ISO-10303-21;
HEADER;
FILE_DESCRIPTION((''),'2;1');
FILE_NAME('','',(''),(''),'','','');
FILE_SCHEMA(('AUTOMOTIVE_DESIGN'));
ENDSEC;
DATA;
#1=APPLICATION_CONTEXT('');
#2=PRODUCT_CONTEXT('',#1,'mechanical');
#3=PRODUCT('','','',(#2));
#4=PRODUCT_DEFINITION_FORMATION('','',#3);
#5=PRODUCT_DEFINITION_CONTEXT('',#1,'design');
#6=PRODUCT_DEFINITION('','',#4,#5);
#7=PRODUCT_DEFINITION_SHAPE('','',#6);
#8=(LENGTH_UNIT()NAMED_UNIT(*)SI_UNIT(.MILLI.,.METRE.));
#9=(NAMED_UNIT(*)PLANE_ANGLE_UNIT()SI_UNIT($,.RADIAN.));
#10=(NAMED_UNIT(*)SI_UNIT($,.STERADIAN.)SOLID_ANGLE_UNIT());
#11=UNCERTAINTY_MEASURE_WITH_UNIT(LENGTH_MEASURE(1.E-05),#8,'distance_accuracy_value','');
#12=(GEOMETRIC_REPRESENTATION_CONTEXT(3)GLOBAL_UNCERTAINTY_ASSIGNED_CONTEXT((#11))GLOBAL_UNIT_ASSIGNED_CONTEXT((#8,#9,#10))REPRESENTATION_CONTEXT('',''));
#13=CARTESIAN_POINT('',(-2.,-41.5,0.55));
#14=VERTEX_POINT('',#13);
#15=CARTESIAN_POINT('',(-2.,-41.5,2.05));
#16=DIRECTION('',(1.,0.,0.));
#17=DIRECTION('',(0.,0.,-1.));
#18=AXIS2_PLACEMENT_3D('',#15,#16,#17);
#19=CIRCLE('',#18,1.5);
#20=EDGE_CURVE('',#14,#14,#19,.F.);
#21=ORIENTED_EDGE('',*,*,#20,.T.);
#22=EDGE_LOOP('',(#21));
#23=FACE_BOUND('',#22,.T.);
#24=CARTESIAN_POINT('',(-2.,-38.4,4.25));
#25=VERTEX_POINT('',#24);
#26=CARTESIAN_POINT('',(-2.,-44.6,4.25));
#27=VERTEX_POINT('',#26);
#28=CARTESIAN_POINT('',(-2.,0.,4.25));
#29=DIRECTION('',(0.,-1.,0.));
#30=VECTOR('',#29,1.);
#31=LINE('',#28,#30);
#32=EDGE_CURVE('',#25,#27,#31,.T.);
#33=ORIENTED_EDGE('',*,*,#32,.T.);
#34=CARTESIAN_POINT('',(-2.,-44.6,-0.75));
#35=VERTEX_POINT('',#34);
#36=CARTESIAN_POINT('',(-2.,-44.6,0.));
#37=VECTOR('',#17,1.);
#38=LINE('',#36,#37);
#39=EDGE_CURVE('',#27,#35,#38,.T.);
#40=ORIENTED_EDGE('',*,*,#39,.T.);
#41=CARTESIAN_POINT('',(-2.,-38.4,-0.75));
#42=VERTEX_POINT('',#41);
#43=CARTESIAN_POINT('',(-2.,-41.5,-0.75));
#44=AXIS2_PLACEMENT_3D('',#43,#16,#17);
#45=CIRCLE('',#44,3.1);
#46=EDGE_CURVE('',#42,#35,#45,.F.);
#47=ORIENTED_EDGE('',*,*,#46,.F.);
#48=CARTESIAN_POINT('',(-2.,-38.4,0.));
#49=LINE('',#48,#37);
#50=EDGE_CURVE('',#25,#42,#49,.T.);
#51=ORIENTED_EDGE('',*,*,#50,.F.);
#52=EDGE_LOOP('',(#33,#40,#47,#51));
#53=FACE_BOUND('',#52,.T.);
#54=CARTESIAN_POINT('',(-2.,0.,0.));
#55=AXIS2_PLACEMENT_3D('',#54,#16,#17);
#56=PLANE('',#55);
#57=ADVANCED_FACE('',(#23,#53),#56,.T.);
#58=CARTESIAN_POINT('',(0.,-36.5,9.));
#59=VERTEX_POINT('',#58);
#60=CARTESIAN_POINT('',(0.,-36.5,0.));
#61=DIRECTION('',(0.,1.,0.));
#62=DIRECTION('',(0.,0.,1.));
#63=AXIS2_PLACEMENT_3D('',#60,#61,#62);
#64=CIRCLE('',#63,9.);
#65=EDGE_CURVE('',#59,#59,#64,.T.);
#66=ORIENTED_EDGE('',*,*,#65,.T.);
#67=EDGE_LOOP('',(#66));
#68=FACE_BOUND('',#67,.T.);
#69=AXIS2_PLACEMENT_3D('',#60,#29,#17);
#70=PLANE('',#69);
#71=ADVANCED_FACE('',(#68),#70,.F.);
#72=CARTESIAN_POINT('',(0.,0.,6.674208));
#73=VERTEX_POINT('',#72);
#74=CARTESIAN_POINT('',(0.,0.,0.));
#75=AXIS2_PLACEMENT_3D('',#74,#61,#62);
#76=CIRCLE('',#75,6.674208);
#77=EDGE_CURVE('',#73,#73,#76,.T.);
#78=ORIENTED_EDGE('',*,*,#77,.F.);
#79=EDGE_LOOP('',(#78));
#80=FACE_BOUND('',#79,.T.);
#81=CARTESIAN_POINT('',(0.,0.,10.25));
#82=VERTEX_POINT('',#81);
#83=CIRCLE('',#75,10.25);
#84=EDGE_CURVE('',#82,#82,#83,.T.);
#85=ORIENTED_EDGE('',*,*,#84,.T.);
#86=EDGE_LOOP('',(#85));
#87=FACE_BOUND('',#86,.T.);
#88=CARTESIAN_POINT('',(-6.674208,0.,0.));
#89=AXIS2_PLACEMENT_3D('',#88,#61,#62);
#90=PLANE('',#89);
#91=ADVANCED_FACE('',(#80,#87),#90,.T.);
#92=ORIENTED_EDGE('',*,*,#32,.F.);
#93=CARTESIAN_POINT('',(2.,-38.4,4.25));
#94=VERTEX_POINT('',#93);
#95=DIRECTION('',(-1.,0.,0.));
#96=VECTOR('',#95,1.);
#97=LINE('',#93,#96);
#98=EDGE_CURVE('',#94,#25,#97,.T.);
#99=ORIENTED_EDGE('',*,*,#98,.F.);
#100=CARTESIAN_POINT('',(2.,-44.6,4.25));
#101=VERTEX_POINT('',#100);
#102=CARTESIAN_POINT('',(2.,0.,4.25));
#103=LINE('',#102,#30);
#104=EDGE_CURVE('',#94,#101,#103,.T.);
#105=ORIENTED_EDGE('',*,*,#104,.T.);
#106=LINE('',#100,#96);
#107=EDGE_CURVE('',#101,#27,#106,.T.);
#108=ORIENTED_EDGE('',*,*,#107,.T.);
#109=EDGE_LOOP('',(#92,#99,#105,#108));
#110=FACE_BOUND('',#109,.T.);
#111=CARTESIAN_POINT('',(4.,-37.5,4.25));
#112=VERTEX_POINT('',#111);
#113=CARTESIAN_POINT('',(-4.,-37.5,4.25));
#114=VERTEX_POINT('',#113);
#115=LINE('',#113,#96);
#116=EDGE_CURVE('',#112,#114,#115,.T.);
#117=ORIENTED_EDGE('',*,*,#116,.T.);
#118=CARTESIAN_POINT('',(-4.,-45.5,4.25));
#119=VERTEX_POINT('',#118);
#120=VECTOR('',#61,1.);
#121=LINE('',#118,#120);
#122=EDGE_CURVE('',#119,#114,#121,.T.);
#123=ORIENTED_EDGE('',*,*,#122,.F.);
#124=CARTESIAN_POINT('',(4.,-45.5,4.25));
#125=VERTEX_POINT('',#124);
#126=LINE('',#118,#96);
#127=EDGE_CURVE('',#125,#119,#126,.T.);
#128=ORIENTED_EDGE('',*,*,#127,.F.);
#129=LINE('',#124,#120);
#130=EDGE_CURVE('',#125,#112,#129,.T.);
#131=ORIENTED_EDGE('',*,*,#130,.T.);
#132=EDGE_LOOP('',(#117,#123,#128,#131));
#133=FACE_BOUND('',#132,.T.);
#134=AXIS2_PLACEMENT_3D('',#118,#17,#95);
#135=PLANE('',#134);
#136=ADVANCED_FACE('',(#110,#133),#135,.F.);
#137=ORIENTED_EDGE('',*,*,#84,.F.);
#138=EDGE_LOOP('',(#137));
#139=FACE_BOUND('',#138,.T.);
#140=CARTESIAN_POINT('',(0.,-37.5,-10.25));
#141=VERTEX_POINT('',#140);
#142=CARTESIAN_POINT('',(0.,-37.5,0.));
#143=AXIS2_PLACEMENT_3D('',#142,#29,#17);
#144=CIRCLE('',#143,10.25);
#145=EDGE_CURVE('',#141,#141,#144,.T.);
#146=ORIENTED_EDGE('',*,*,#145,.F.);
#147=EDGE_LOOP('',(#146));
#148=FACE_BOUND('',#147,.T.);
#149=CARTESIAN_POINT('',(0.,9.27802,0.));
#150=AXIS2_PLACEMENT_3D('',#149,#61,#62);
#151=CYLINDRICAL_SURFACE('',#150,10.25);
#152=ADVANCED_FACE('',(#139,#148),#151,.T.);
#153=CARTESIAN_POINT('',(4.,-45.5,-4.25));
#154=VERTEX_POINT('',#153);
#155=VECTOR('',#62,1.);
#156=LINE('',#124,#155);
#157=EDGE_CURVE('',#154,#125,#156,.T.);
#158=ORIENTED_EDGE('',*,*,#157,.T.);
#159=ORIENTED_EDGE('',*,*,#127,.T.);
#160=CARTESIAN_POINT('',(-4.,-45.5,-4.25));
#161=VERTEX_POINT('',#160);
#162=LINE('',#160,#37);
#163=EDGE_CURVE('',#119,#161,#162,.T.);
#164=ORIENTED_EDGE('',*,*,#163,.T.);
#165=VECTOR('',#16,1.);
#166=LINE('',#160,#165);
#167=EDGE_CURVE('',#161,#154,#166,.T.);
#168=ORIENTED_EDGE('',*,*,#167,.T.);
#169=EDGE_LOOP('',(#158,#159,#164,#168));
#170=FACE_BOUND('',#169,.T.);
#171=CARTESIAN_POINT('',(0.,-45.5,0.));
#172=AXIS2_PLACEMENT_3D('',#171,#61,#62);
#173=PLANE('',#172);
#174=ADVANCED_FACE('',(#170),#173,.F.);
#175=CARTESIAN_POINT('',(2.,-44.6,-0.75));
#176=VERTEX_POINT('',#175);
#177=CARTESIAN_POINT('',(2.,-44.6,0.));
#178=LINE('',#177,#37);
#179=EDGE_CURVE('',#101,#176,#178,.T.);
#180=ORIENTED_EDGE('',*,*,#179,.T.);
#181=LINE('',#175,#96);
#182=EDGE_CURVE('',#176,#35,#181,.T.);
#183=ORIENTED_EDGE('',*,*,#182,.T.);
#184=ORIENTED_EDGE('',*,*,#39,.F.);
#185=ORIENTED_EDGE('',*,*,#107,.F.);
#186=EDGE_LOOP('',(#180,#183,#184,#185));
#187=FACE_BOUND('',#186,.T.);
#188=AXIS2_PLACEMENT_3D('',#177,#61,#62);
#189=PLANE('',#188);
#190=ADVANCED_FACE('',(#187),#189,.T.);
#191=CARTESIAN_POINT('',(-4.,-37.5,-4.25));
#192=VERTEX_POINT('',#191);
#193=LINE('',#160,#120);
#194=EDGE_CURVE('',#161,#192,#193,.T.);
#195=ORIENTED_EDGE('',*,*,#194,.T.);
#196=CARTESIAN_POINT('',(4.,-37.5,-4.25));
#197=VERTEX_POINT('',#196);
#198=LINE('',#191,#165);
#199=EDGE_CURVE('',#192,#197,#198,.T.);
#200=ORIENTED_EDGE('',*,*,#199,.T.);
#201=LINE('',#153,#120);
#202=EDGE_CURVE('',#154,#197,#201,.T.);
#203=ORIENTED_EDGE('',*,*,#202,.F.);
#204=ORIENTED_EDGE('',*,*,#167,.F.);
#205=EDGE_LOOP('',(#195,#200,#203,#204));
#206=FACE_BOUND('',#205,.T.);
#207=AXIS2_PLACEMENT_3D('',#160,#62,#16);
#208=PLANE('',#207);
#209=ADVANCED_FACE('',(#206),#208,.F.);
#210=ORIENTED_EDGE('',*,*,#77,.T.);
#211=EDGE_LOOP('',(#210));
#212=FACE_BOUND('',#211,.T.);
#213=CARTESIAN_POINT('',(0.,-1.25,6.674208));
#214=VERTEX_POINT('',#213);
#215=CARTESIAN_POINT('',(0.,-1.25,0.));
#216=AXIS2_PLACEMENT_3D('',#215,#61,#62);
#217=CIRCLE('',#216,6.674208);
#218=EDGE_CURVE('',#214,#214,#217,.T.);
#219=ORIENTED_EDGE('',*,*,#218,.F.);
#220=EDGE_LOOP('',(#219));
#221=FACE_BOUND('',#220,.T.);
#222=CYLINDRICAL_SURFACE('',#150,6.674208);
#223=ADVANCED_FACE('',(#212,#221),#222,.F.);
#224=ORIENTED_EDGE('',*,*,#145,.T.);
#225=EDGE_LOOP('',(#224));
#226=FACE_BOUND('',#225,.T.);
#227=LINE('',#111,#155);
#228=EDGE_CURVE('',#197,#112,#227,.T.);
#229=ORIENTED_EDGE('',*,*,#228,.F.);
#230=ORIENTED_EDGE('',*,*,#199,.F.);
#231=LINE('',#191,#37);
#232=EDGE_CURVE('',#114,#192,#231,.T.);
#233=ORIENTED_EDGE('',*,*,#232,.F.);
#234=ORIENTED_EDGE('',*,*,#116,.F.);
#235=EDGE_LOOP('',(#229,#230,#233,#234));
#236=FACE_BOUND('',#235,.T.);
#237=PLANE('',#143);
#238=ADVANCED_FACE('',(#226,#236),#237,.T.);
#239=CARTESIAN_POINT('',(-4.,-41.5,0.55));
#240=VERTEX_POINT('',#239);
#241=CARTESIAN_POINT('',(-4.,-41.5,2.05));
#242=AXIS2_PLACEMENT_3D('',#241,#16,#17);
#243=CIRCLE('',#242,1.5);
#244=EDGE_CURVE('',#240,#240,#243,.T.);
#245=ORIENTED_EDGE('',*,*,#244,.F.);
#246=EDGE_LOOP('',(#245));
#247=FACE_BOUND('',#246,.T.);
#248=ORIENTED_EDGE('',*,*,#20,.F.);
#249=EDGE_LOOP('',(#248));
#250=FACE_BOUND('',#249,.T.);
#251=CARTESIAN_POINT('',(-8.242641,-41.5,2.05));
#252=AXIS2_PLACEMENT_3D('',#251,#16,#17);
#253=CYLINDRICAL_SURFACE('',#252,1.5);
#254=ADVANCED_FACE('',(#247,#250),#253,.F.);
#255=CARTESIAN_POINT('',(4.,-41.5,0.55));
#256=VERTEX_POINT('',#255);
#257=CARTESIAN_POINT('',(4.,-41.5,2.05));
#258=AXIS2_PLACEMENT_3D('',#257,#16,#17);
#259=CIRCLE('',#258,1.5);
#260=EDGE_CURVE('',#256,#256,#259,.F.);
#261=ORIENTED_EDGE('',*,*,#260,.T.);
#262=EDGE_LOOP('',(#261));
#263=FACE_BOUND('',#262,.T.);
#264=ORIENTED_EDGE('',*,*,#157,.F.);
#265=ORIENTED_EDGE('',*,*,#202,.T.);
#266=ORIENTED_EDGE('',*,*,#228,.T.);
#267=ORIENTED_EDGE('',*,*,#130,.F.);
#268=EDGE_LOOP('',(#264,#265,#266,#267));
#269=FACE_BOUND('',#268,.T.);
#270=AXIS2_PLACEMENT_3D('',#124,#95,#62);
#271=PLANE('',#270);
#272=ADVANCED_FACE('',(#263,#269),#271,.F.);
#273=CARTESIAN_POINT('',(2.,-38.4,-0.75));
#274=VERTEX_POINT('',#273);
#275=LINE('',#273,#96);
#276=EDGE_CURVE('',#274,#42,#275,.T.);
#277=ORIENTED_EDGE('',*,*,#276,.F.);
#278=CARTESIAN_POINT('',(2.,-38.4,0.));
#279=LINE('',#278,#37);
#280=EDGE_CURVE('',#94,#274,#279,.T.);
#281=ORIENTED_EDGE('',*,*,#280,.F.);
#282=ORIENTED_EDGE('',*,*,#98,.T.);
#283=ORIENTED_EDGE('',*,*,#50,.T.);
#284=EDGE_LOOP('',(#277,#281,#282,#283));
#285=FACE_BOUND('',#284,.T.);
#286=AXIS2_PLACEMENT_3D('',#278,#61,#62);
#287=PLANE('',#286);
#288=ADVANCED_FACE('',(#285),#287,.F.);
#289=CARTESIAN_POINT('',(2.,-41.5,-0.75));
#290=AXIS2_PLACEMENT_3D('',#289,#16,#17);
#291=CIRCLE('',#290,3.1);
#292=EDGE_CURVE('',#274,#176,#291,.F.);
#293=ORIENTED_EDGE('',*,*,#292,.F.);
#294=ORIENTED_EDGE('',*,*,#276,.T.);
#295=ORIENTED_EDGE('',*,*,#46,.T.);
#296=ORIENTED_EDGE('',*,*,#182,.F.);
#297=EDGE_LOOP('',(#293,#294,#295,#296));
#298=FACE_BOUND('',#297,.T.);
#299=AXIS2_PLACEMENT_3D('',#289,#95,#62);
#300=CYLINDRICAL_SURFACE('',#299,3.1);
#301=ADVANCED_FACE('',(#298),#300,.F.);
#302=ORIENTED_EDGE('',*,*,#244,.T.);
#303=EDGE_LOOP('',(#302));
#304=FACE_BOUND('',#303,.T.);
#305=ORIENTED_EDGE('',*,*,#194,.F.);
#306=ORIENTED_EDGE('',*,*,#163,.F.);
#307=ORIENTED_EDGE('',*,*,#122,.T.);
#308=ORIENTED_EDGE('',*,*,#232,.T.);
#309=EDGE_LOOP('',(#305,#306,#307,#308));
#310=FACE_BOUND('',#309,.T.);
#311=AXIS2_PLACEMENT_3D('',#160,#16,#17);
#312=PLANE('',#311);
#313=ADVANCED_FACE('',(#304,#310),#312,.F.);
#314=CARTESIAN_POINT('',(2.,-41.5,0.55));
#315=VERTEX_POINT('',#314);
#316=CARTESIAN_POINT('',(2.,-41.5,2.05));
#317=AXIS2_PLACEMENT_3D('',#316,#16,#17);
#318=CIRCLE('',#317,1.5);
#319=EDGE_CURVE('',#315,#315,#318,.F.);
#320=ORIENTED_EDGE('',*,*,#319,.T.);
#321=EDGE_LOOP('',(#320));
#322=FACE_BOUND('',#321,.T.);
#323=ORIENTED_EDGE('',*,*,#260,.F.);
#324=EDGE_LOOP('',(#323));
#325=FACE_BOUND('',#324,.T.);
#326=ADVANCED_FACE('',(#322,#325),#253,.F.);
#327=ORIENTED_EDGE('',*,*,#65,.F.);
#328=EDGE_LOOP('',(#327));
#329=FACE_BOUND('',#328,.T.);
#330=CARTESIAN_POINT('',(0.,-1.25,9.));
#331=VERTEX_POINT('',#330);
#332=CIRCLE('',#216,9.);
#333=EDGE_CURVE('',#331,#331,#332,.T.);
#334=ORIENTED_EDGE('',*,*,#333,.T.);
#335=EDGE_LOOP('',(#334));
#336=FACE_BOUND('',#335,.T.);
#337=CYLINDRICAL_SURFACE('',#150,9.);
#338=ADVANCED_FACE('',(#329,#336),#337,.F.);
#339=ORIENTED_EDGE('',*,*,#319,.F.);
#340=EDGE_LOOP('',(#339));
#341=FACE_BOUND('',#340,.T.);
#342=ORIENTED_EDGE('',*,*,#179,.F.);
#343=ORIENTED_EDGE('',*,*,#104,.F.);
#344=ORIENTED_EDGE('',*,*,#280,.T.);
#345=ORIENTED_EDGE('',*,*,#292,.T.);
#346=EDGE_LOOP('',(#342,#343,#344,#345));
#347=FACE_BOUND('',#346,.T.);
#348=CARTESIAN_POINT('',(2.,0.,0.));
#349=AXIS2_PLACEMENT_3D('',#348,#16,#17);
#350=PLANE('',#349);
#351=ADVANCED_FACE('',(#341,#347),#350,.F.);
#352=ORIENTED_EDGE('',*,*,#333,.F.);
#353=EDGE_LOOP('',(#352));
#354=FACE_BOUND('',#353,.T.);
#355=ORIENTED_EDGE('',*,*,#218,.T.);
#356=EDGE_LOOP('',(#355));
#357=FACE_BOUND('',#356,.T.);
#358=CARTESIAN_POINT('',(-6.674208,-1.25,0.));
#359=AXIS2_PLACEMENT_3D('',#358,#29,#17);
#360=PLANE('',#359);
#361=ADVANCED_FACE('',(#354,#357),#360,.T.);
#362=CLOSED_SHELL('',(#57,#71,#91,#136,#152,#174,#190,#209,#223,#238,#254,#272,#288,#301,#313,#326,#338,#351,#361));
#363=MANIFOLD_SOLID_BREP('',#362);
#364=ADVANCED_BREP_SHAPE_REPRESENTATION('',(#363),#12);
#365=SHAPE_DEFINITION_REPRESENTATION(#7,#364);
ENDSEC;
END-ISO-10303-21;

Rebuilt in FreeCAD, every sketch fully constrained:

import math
import FreeCAD as App
import Part
import Sketcher

V = App.Vector
Q = App.Units.Quantity

doc = App.newDocument("Part")
body = doc.addObject("PartDesign::Body", "Body")

# Sketch on XY plane
sketch1 = doc.addObject("Sketcher::SketchObject", "Sketch")
body.addObject(sketch1)
sketch1.AttachmentSupport = (doc.XY_Plane, [""])
sketch1.MapMode = "FlatFace"
sketch1.addGeometry([
    Part.LineSegment(V(-6.674208, -1.25, 0), V(-6.674208, 0, 0)),  # 0
    Part.LineSegment(V(-6.674208, 0, 0), V(-10.25, 0, 0)),  # 1
    Part.LineSegment(V(-10.25, 0, 0), V(-10.25, -36.5, 0)),  # 2
    Part.LineSegment(V(-10.25, -36.5, 0), V(-9, -36.5, 0)),  # 3
    Part.LineSegment(V(-9, -36.5, 0), V(-9, -1.25, 0)),  # 4
    Part.LineSegment(V(-9, -1.25, 0), V(-6.674208, -1.25, 0)),  # 5
], False)
sketch1.addConstraint([
    Sketcher.Constraint("Coincident", 0, 2, 1, 1),
    Sketcher.Constraint("Coincident", 1, 2, 2, 1),
    Sketcher.Constraint("Coincident", 2, 2, 3, 1),
    Sketcher.Constraint("Coincident", 3, 2, 4, 1),
    Sketcher.Constraint("Coincident", 4, 2, 5, 1),
    Sketcher.Constraint("Coincident", 5, 2, 0, 1),
    Sketcher.Constraint("Vertical", 0),
    Sketcher.Constraint("Horizontal", 1),
    Sketcher.Constraint("Vertical", 2),
    Sketcher.Constraint("Horizontal", 3),
    Sketcher.Constraint("Vertical", 4),
    Sketcher.Constraint("Horizontal", 5),
    Sketcher.Constraint("PointOnObject", 0, 2, -1),
    Sketcher.Constraint("Equal", 3, 0),
    Sketcher.Constraint("DistanceY", 2, 2, 2, 1, Q("36.5 mm")),
    Sketcher.Constraint("DistanceX", 3, 2, -1, 1, Q("9 mm")),
    Sketcher.Constraint("DistanceX", 3, 1, 3, 2, Q("1.25 mm")),
    Sketcher.Constraint("DistanceX", 1, 2, 1, 1, Q("3.575792 mm")),
])
revolution = doc.addObject("PartDesign::Revolution", "Revolution")
body.addObject(revolution)
revolution.Profile = sketch1
revolution.ReferenceAxis = (sketch1, ["V_Axis"])
revolution.Angle = 360

# Sketch on XZ plane
sketch2 = doc.addObject("Sketcher::SketchObject", "Sketch001")
body.addObject(sketch2)
sketch2.AttachmentSupport = (doc.XZ_Plane, [""])
sketch2.MapMode = "FlatFace"
sketch2.AttachmentOffset = App.Placement(V(0, 0, 36.5), App.Rotation())
sketch2.addGeometry(Part.Circle(V(0, 0, 0), V(0, 0, 1), 10.25), False)
sketch2.addConstraint([
    Sketcher.Constraint("Coincident", 0, 3, -1, 1),
    Sketcher.Constraint("Diameter", 0, Q("20.5 mm")),
])
pad1 = doc.addObject("PartDesign::Pad", "Pad")
body.addObject(pad1)
pad1.Profile = sketch2
pad1.Length = 1

# Sketch on XZ plane
sketch3 = doc.addObject("Sketcher::SketchObject", "Sketch002")
body.addObject(sketch3)
sketch3.AttachmentSupport = (doc.XZ_Plane, [""])
sketch3.MapMode = "FlatFace"
sketch3.AttachmentOffset = App.Placement(V(0, 0, 37.5), App.Rotation())
sketch3.addGeometry([
    Part.LineSegment(V(-4, 4.25, 0), V(-4, -4.25, 0)),
    Part.LineSegment(V(-4, -4.25, 0), V(4, -4.25, 0)),
    Part.LineSegment(V(4, -4.25, 0), V(4, 4.25, 0)),
    Part.LineSegment(V(4, 4.25, 0), V(-4, 4.25, 0)),
], False)
sketch3.addConstraint([
    Sketcher.Constraint("Coincident", 0, 2, 1, 1),
    Sketcher.Constraint("Coincident", 1, 2, 2, 1),
    Sketcher.Constraint("Coincident", 2, 2, 3, 1),
    Sketcher.Constraint("Coincident", 3, 2, 0, 1),
    Sketcher.Constraint("Vertical", 0),
    Sketcher.Constraint("Horizontal", 1),
    Sketcher.Constraint("Vertical", 2),
    Sketcher.Constraint("Horizontal", 3),
    Sketcher.Constraint("Symmetric", 0, 2, 2, 2, -1, 1),
    Sketcher.Constraint("DistanceX", 1, 1, 1, 2, Q("8 mm")),
    Sketcher.Constraint("DistanceY", 0, 2, 0, 1, Q("8.5 mm")),
])
pad2 = doc.addObject("PartDesign::Pad", "Pad001")
body.addObject(pad2)
pad2.Profile = sketch3
pad2.Length = 8

# Sketch on YZ plane
sketch4 = doc.addObject("Sketcher::SketchObject", "Sketch003")
body.addObject(sketch4)
sketch4.AttachmentSupport = (doc.YZ_Plane, [""])
sketch4.MapMode = "FlatFace"
sketch4.addGeometry([
    Part.LineSegment(V(-44.6, 4.25, 0), V(-38.4, 4.25, 0)),  # 0
    Part.LineSegment(V(-38.4, 4.25, 0), V(-38.4, -0.75, 0)),  # 1
    Part.ArcOfCircle(Part.Circle(V(-41.5, -0.75, 0), V(0, 0, 1), 3.1), math.radians(180), math.radians(360)),  # 2
    Part.LineSegment(V(-44.6, -0.75, 0), V(-44.6, 4.25, 0)),  # 3
    Part.Circle(V(-41.5, 2.05, 0), V(0, 0, 1), 1.5),  # 4
], False)
sketch4.addConstraint([
    Sketcher.Constraint("Coincident", 0, 2, 1, 1),
    Sketcher.Constraint("Tangent", 1, 2, 2, 2),
    Sketcher.Constraint("Tangent", 2, 1, 3, 1),
    Sketcher.Constraint("Coincident", 3, 2, 0, 1),
    Sketcher.Constraint("Horizontal", 0),
    Sketcher.Constraint("Vertical", 1),
    Sketcher.Constraint("Vertical", 3),
    Sketcher.Constraint("Vertical", 2, 3, 4, 3),
    Sketcher.Constraint("Diameter", 4, Q("3 mm")),
    Sketcher.Constraint("Radius", 2, Q("3.1 mm")),
    Sketcher.Constraint("DistanceY", 1, 2, 1, 1, Q("5 mm")),
    Sketcher.Constraint("DistanceX", 2, 3, -1, 1, Q("41.5 mm")),
    Sketcher.Constraint("DistanceY", 2, 3, 4, 3, Q("2.8 mm")),
    Sketcher.Constraint("DistanceY", 2, 3, -1, 1, Q("0.75 mm")),
])
pocket1 = doc.addObject("PartDesign::Pocket", "Pocket")
body.addObject(pocket1)
pocket1.Profile = sketch4
pocket1.Length = 4
pocket1.Midplane = True

# Sketch on YZ plane
sketch5 = doc.addObject("Sketcher::SketchObject", "Sketch004")
body.addObject(sketch5)
sketch5.AttachmentSupport = (doc.YZ_Plane, [""])
sketch5.MapMode = "FlatFace"
sketch5.AttachmentOffset = App.Placement(V(0, 0, 4), App.Rotation())
sketch5.addGeometry(Part.Circle(V(-41.5, 2.05, 0), V(0, 0, 1), 1.5), False)
sketch5.addConstraint([
    Sketcher.Constraint("Diameter", 0, Q("3 mm")),
    Sketcher.Constraint("DistanceX", 0, 3, -1, 1, Q("41.5 mm")),
    Sketcher.Constraint("DistanceY", -1, 1, 0, 3, Q("2.05 mm")),
])
pocket2 = doc.addObject("PartDesign::Pocket", "Pocket001")
body.addObject(pocket2)
pocket2.Profile = sketch5
pocket2.Length = 8

doc.recompute()
